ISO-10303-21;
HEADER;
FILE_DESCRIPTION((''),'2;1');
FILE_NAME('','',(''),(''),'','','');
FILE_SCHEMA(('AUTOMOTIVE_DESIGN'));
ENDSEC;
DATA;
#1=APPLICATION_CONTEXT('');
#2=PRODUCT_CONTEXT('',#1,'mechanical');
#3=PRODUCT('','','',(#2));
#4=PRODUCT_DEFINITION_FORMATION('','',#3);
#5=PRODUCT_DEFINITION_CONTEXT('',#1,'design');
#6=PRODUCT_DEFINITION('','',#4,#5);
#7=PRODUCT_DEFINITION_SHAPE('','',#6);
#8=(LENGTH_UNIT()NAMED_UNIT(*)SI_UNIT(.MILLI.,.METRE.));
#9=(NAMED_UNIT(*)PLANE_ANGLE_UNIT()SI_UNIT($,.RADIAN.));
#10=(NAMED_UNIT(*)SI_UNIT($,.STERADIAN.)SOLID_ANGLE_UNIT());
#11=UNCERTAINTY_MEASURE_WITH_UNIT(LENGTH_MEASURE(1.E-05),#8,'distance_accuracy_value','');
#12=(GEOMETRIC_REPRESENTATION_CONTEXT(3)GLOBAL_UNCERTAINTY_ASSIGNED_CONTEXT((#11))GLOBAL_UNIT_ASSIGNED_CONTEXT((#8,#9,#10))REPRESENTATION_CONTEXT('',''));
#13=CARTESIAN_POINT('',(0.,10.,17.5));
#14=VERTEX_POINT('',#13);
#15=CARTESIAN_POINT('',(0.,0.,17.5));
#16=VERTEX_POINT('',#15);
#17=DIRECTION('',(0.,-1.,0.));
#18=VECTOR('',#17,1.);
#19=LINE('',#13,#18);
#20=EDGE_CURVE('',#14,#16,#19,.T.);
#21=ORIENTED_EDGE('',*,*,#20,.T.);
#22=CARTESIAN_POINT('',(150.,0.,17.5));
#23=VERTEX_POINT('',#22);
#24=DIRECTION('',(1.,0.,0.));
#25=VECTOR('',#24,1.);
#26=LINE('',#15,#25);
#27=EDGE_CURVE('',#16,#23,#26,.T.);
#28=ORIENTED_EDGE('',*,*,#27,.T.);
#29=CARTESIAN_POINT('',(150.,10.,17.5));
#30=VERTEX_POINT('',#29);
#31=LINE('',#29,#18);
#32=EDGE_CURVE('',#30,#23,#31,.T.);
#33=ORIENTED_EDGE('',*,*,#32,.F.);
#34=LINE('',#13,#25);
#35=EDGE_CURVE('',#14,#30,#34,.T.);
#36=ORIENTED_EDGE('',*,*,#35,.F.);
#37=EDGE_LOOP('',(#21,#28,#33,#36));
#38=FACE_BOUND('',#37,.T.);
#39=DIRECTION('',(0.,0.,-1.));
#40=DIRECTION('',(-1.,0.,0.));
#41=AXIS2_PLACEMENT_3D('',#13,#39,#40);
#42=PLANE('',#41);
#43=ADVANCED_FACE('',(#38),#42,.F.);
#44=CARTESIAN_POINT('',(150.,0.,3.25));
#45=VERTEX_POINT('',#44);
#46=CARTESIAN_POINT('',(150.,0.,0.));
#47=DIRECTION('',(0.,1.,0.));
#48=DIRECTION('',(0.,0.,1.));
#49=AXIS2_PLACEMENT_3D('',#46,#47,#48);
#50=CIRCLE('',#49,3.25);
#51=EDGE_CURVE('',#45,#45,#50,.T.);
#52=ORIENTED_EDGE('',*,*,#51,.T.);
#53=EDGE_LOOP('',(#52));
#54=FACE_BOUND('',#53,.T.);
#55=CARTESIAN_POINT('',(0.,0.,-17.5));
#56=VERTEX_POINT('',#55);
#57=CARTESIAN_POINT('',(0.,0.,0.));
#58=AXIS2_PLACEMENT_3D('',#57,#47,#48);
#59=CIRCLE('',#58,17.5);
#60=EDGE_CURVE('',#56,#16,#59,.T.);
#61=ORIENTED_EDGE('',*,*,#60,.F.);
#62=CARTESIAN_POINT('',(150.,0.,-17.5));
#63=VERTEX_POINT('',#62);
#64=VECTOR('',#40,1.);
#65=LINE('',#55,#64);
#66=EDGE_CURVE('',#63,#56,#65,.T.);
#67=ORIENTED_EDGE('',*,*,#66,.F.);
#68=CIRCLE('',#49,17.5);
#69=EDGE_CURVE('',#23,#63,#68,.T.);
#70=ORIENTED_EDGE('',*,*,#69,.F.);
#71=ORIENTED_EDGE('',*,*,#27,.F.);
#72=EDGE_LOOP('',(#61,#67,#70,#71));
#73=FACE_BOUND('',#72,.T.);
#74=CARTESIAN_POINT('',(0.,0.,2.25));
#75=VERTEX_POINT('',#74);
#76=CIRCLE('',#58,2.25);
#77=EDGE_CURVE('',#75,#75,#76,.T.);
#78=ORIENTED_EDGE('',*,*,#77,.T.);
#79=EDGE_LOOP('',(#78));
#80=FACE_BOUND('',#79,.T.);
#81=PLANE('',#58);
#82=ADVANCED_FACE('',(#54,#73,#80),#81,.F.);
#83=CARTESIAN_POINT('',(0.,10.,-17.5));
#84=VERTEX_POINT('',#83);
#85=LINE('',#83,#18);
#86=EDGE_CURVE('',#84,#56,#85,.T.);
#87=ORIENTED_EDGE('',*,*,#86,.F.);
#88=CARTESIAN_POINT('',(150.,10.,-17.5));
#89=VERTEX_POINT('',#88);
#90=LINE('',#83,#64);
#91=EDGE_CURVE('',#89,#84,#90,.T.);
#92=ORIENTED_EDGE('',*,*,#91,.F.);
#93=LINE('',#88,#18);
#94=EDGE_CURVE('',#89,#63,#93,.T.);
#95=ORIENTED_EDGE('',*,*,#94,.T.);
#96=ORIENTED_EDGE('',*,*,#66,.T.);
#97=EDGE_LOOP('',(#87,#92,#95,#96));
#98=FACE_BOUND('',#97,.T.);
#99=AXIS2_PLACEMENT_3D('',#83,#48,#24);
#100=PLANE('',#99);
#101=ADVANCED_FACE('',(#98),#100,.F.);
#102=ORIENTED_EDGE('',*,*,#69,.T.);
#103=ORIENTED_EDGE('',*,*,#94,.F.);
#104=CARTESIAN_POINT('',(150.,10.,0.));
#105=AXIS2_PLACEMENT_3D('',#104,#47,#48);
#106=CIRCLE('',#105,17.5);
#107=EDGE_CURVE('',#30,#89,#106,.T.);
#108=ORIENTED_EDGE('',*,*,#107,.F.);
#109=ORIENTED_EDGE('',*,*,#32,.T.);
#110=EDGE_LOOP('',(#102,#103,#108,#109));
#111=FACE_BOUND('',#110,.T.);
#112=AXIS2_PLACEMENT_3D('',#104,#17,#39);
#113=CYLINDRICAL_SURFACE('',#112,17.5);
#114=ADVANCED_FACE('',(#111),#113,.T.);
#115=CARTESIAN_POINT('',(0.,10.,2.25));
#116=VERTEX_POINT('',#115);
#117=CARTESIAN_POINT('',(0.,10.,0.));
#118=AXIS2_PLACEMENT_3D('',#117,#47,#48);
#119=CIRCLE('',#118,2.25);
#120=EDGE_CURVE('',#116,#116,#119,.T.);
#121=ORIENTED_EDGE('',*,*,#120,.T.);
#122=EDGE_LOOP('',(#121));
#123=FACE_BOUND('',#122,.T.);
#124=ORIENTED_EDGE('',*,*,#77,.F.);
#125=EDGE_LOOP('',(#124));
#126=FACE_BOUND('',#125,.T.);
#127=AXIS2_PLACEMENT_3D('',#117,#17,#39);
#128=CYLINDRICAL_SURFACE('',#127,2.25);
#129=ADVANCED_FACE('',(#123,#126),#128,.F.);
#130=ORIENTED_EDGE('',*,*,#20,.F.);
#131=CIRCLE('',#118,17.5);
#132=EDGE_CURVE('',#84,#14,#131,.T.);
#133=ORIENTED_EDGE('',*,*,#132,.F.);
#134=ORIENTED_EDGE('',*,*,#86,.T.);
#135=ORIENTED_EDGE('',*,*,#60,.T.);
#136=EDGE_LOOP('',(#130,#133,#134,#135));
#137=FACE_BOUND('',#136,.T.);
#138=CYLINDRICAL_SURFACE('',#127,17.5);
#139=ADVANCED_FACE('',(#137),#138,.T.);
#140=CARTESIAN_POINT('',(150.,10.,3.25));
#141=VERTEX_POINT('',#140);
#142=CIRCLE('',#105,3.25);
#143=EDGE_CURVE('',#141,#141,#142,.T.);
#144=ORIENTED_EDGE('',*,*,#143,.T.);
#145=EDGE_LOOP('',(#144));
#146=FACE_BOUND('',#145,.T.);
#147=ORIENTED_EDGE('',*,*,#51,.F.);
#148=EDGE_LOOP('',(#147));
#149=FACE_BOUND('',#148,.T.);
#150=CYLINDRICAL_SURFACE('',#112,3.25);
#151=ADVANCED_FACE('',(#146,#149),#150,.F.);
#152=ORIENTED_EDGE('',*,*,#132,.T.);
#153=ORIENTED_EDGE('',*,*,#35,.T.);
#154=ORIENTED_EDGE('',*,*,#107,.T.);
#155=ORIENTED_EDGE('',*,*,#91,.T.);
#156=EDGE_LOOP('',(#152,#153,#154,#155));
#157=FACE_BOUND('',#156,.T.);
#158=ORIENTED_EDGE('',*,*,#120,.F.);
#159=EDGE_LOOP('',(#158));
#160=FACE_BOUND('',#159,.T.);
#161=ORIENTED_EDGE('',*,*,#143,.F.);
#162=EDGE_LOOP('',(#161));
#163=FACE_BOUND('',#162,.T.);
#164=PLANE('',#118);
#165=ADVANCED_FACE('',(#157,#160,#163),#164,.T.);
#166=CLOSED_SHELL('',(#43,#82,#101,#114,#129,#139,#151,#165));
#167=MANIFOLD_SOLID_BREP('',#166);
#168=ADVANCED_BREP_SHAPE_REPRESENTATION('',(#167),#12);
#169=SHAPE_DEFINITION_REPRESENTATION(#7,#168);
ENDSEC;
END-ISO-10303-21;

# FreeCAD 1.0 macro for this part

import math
import FreeCAD as App
import Part
import Sketcher
from FreeCAD import Vector

doc = App.newDocument("Part")
params = doc.addObject("Spreadsheet::Sheet", "Params")
for row, (alias, value) in enumerate([
    ("sketch1_diameter", "6.5 mm"),
    ("sketch1_diameter2", "4.5 mm"),
    ("sketch1_radius", "17.5 mm"),
    ("sketch1_width", "150 mm"),
    ("pad1_length", "10 mm"),
], start=1):
    params.set(f"A{row}", alias)
    params.set(f"B{row}", "=" + value)
    params.setAlias(f"B{row}", alias)

body = doc.addObject("PartDesign::Body", "Body")

# Sketch on XZ plane
sketch1 = body.newObject("Sketcher::SketchObject", "Sketch")
sketch1.AttachmentSupport = (doc.getObject("XZ_Plane"), [""])
sketch1.MapMode = "FlatFace"
sketch1.addGeometry([
    Part.LineSegment(Vector(150, -17.5, 0), Vector(0, -17.5, 0)),  # 0
    Part.ArcOfCircle(Part.Circle(Vector(0, 0, 0), Vector(0, 0, 1), 17.5), math.radians(90), math.radians(270)),  # 1
    Part.LineSegment(Vector(0, 17.5, 0), Vector(150, 17.5, 0)),  # 2
    Part.ArcOfCircle(Part.Circle(Vector(150, 0, 0), Vector(0, 0, 1), 17.5), math.radians(-90), math.radians(90)),  # 3
    Part.Circle(Vector(150, 0, 0), Vector(0, 0, 1), 3.2),  # 4
    Part.Circle(Vector(0, 0, 0), Vector(0, 0, 1), 2.2),  # 5
], False)
sketch1.addConstraint([
    Sketcher.Constraint("Tangent", 0, 2, 1, 2),
    Sketcher.Constraint("Tangent", 1, 1, 2, 1),
    Sketcher.Constraint("Tangent", 2, 2, 3, 2),
    Sketcher.Constraint("Tangent", 3, 1, 0, 1),
    Sketcher.Constraint("Horizontal", 0),
    Sketcher.Constraint("Horizontal", 2),
    Sketcher.Constraint("Coincident", 1, 3, -1, 1),
    Sketcher.Constraint("Coincident", 5, 3, -1, 1),
    Sketcher.Constraint("Coincident", 4, 3, 3, 3),
    Sketcher.Constraint("Diameter", 4, 6.5),
    Sketcher.Constraint("Diameter", 5, 4.5),
    Sketcher.Constraint("Radius", 1, 17.5),
    Sketcher.Constraint("DistanceX", 0, 2, 0, 1, 150.0),
])
sketch1.setExpression("Constraints[9]", "Params.sketch1_diameter")
sketch1.setExpression("Constraints[10]", "Params.sketch1_diameter2")
sketch1.setExpression("Constraints[11]", "Params.sketch1_radius")
sketch1.setExpression("Constraints[12]", "Params.sketch1_width")
pad1 = body.newObject("PartDesign::Pad", "Pad")
pad1.Profile = sketch1
pad1.setExpression("Length", "Params.pad1_length")
pad1.Reversed = True

doc.recompute()
